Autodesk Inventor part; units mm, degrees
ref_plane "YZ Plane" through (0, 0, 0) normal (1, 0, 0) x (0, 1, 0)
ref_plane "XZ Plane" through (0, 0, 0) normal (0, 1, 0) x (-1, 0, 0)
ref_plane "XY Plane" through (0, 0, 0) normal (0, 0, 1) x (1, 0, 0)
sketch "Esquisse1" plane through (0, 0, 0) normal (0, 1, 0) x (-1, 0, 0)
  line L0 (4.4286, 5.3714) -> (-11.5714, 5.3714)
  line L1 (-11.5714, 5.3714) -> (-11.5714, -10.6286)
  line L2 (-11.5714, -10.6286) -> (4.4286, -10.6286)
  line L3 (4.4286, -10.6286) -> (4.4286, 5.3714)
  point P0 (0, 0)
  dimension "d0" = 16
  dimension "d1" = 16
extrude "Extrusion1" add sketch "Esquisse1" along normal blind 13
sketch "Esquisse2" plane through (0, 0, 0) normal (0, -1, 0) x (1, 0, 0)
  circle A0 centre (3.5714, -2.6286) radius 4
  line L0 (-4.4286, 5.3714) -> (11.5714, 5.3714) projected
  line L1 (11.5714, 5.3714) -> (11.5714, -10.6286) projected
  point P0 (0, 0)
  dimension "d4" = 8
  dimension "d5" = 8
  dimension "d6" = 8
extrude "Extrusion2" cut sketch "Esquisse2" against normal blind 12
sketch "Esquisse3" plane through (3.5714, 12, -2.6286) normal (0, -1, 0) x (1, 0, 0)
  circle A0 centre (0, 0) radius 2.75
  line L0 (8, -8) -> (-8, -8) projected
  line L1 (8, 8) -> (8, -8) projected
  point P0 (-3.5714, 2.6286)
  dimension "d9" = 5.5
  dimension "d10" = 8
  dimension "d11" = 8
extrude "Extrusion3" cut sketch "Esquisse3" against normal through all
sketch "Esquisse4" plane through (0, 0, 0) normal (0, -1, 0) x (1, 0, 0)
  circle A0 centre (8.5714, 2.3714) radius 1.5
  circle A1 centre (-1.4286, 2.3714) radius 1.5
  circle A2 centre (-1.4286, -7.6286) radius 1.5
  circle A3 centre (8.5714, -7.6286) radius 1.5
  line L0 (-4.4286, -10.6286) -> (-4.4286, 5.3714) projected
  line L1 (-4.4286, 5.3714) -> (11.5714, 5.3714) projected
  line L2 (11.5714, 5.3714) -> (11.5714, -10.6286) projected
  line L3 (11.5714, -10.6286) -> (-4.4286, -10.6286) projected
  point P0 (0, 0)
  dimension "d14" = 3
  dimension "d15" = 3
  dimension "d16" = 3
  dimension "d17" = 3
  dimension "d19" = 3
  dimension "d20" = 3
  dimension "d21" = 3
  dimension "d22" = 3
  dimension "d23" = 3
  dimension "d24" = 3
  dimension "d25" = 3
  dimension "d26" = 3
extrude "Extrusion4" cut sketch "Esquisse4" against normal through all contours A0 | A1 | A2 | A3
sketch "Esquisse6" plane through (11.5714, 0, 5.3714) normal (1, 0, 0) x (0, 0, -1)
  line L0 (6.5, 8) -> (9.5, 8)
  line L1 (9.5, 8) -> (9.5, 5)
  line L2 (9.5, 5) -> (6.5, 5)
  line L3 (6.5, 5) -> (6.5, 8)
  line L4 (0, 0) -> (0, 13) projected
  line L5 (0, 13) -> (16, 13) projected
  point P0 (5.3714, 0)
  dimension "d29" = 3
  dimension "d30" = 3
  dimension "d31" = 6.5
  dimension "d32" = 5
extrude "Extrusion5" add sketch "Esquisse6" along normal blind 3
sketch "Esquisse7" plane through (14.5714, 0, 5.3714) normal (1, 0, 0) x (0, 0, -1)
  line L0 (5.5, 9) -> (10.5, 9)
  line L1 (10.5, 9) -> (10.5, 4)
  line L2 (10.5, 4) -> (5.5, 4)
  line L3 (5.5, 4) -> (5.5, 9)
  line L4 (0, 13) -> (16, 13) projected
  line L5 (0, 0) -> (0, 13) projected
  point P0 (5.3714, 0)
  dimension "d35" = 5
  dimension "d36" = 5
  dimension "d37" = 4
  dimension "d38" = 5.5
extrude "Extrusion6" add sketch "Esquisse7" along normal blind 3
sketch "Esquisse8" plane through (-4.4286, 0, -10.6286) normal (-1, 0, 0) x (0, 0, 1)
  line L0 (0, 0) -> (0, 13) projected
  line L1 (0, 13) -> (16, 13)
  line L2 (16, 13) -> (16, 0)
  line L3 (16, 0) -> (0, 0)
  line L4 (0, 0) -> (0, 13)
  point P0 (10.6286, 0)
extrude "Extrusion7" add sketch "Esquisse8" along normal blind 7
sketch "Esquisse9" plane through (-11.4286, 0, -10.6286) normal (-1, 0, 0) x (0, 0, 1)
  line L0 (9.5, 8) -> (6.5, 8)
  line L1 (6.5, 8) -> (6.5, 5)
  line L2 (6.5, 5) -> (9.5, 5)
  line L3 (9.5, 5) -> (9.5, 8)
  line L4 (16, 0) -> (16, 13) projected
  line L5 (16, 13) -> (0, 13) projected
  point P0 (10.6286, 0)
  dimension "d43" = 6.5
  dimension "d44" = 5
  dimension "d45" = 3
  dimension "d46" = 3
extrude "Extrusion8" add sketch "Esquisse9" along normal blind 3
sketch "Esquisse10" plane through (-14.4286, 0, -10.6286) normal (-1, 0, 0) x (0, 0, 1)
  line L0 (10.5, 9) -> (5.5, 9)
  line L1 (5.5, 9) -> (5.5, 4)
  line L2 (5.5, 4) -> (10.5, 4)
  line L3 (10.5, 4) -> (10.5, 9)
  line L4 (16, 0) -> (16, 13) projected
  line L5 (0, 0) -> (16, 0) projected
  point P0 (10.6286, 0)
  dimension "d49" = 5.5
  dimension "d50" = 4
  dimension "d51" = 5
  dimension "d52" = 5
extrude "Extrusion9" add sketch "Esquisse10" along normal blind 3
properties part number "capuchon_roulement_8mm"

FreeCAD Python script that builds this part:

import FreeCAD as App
import Part
import Sketcher
from FreeCAD import Vector


def add_polygon(sketch, points):
    """Adds a closed chain of lines whose ends are joined by coincident constraints."""
    first, n = sketch.GeometryCount, len(points)
    for a, b in zip(points, points[1:] + points[:1]):
        sketch.addGeometry(Part.LineSegment(App.Vector(*a, 0), App.Vector(*b, 0)), False)
    for i in range(n):
        sketch.addConstraint(Sketcher.Constraint("Coincident", first + i, 2, first + (i + 1) % n, 1))

doc = App.newDocument("Part")
body = doc.addObject("PartDesign::Body", "Body")

# Sketch on XZ plane
sketch1 = doc.addObject("Sketcher::SketchObject", "Sketch")
body.addObject(sketch1)
sketch1.AttachmentSupport = (doc.XZ_Plane, [""])
sketch1.MapMode = "FlatFace"
add_polygon(sketch1, [(-4, -11), (-4, 5), (12, 5), (12, -11)])  # lines 0-3
sketch1.addConstraint([
    Sketcher.Constraint("Vertical", 0),
    Sketcher.Constraint("Horizontal", 1),
    Sketcher.Constraint("Vertical", 2),
    Sketcher.Constraint("Horizontal", 3),
    Sketcher.Constraint("Equal", 3, 0),
    Sketcher.Constraint("DistanceX", 1, 1, 1, 2, 16.0),
    Sketcher.Constraint("DistanceX", 0, 2, -1, 1, 4.4286),
    Sketcher.Constraint("DistanceY", -1, 1, 0, 2, 5.3714),
])
pad1 = doc.addObject("PartDesign::Pad", "Pad")
body.addObject(pad1)
pad1.Profile = sketch1
pad1.Length = 13
pad1.Reversed = True

# Sketch on XZ plane
sketch2 = doc.addObject("Sketcher::SketchObject", "Sketch001")
body.addObject(sketch2)
sketch2.AttachmentSupport = (doc.XZ_Plane, [""])
sketch2.MapMode = "FlatFace"
sketch2.addGeometry(Part.Circle(Vector(3.6, -2.6, 0), Vector(0, 0, 1), 4), False)
sketch2.addConstraint([
    Sketcher.Constraint("Diameter", 0, 8.0),
    Sketcher.Constraint("DistanceX", -1, 1, 0, 3, 3.5714),
    Sketcher.Constraint("DistanceY", 0, 3, -1, 1, 2.6286),
])
pocket1 = doc.addObject("PartDesign::Pocket", "Pocket")
body.addObject(pocket1)
pocket1.Profile = sketch2
pocket1.Length = 12

# Sketch on XZ plane
sketch3 = doc.addObject("Sketcher::SketchObject", "Sketch002")
body.addObject(sketch3)
sketch3.AttachmentSupport = (doc.XZ_Plane, [""])
sketch3.MapMode = "FlatFace"
sketch3.AttachmentOffset = App.Placement(Vector(0, 0, -12), App.Rotation())
sketch3.addGeometry(Part.Circle(Vector(3.6, -2.6, 0), Vector(0, 0, 1), 2.8), False)
sketch3.addConstraint([
    Sketcher.Constraint("Diameter", 0, 5.5),
    Sketcher.Constraint("DistanceX", -1, 1, 0, 3, 3.5714),
    Sketcher.Constraint("DistanceY", 0, 3, -1, 1, 2.6286),
])
pocket2 = doc.addObject("PartDesign::Pocket", "Pocket001")
body.addObject(pocket2)
pocket2.Profile = sketch3
pocket2.Type = "ThroughAll"

# Sketch on XZ plane
sketch4 = doc.addObject("Sketcher::SketchObject", "Sketch003")
body.addObject(sketch4)
sketch4.AttachmentSupport = (doc.XZ_Plane, [""])
sketch4.MapMode = "FlatFace"
sketch4.addGeometry([
    Part.Circle(Vector(8.6, 2.4, 0), Vector(0, 0, 1), 1.5),
    Part.Circle(Vector(-1.4, 2.4, 0), Vector(0, 0, 1), 1.5),
    Part.Circle(Vector(-1.4, -7.6, 0), Vector(0, 0, 1), 1.5),
    Part.Circle(Vector(8.6, -7.6, 0), Vector(0, 0, 1), 1.5),
], False)
sketch4.addConstraint([
    Sketcher.Constraint("Equal", 0, 1),
    Sketcher.Constraint("Equal", 1, 2),
    Sketcher.Constraint("Equal", 2, 3),
    Sketcher.Constraint("Horizontal", 0, 3, 1, 3),
    Sketcher.Constraint("Horizontal", 2, 3, 3, 3),
    Sketcher.Constraint("Vertical", 1, 3, 2, 3),
    Sketcher.Constraint("Vertical", 0, 3, 3, 3),
    Sketcher.Constraint("Diameter", 0, 3.0),
    Sketcher.Constraint("DistanceX", 1, 3, 0, 3, 10.0),
    Sketcher.Constraint("DistanceY", 2, 3, 1, 3, 10.0),
    Sketcher.Constraint("DistanceX", -1, 1, 0, 3, 8.5714),
    Sketcher.Constraint("DistanceY", -1, 1, 0, 3, 2.3714),
])
pocket3 = doc.addObject("PartDesign::Pocket", "Pocket002")
body.addObject(pocket3)
pocket3.Profile = sketch4
pocket3.Type = "ThroughAll"

# Sketch on YZ plane
sketch5 = doc.addObject("Sketcher::SketchObject", "Sketch004")
body.addObject(sketch5)
sketch5.AttachmentSupport = (doc.YZ_Plane, [""])
sketch5.MapMode = "FlatFace"
sketch5.AttachmentOffset = App.Placement(Vector(0, 0, 11.5714), App.Rotation())
add_polygon(sketch5, [(8, -4.1), (8, -1.1), (5, -1.1), (5, -4.1)])  # lines 0-3
sketch5.addConstraint([
    Sketcher.Constraint("Vertical", 0),
    Sketcher.Constraint("Horizontal", 1),
    Sketcher.Constraint("Vertical", 2),
    Sketcher.Constraint("Horizontal", 3),
    Sketcher.Constraint("Equal", 3, 0),
    Sketcher.Constraint("DistanceX", 1, 2, 1, 1, 3.0),
    Sketcher.Constraint("DistanceX", -1, 1, 1, 2, 5.0),
    Sketcher.Constraint("DistanceY", 0, 2, -1, 1, 1.1286),
])
pad2 = doc.addObject("PartDesign::Pad", "Pad001")
body.addObject(pad2)
pad2.Profile = sketch5
pad2.Length = 3

# Sketch on YZ plane
sketch6 = doc.addObject("Sketcher::SketchObject", "Sketch005")
body.addObject(sketch6)
sketch6.AttachmentSupport = (doc.YZ_Plane, [""])
sketch6.MapMode = "FlatFace"
sketch6.AttachmentOffset = App.Placement(Vector(0, 0, 14.5714), App.Rotation())
add_polygon(sketch6, [(9, -5), (9, 0), (4, 0), (4, -5)])  # lines 0-3
sketch6.addConstraint([
    Sketcher.Constraint("Vertical", 0),
    Sketcher.Constraint("Horizontal", 1),
    Sketcher.Constraint("Vertical", 2),
    Sketcher.Constraint("Horizontal", 3),
    Sketcher.Constraint("Equal", 3, 0),
    Sketcher.Constraint("DistanceX", 1, 2, 1, 1, 5.0),
    Sketcher.Constraint("DistanceX", -1, 1, 1, 2, 4.0),
    Sketcher.Constraint("DistanceY", 0, 2, -1, 1, 0.1286),
])
pad3 = doc.addObject("PartDesign::Pad", "Pad002")
body.addObject(pad3)
pad3.Profile = sketch6
pad3.Length = 3

# Sketch on YZ plane
sketch7 = doc.addObject("Sketcher::SketchObject", "Sketch006")
body.addObject(sketch7)
sketch7.AttachmentSupport = (doc.YZ_Plane, [""])
sketch7.MapMode = "FlatFace"
sketch7.AttachmentOffset = App.Placement(Vector(0, 0, -4.4286), App.Rotation())
add_polygon(sketch7, [(13, -11), (0, -11), (0, 5), (13, 5)])  # lines 0-3
sketch7.addConstraint([
    Sketcher.Constraint("Horizontal", 0),
    Sketcher.Constraint("Vertical", 1),
    Sketcher.Constraint("Horizontal", 2),
    Sketcher.Constraint("Vertical", 3),
    Sketcher.Constraint("PointOnObject", 0, 2, -2),
    Sketcher.Constraint("DistanceX", 0, 2, 0, 1, 13.0),
    Sketcher.Constraint("DistanceY", 1, 1, 1, 2, 16.0),
    Sketcher.Constraint("DistanceY", 0, 2, -1, 1, 10.6286),
])
pad4 = doc.addObject("PartDesign::Pad", "Pad003")
body.addObject(pad4)
pad4.Profile = sketch7
pad4.Length = 7
pad4.Reversed = True

# Sketch on YZ plane
sketch8 = doc.addObject("Sketcher::SketchObject", "Sketch007")
body.addObject(sketch8)
sketch8.AttachmentSupport = (doc.YZ_Plane, [""])
sketch8.MapMode = "FlatFace"
sketch8.AttachmentOffset = App.Placement(Vector(0, 0, -11.4286), App.Rotation())
add_polygon(sketch8, [(5, -1.1), (8, -1.1), (8, -4.1), (5, -4.1)])  # lines 0-3
sketch8.addConstraint([
    Sketcher.Constraint("Horizontal", 0),
    Sketcher.Constraint("Vertical", 1),
    Sketcher.Constraint("Horizontal", 2),
    Sketcher.Constraint("Vertical", 3),
    Sketcher.Constraint("Equal", 2, 1),
    Sketcher.Constraint("DistanceX", 0, 1, 0, 2, 3.0),
    Sketcher.Constraint("DistanceX", -1, 1, 2, 2, 5.0),
    Sketcher.Constraint("DistanceY", 0, 2, -1, 1, 1.1286),
])
pad5 = doc.addObject("PartDesign::Pad", "Pad004")
body.addObject(pad5)
pad5.Profile = sketch8
pad5.Length = 3
pad5.Reversed = True

# Sketch on YZ plane
sketch9 = doc.addObject("Sketcher::SketchObject", "Sketch008")
body.addObject(sketch9)
sketch9.AttachmentSupport = (doc.YZ_Plane, [""])
sketch9.MapMode = "FlatFace"
sketch9.AttachmentOffset = App.Placement(Vector(0, 0, -14.4286), App.Rotation())
add_polygon(sketch9, [(4, 0), (9, 0), (9, -5), (4, -5)])  # lines 0-3
sketch9.addConstraint([
    Sketcher.Constraint("Horizontal", 0),
    Sketcher.Constraint("Vertical", 1),
    Sketcher.Constraint("Horizontal", 2),
    Sketcher.Constraint("Vertical", 3),
    Sketcher.Constraint("Equal", 2, 1),
    Sketcher.Constraint("DistanceX", 0, 1, 0, 2, 5.0),
    Sketcher.Constraint("DistanceX", -1, 1, 2, 2, 4.0),
    Sketcher.Constraint("DistanceY", 0, 2, -1, 1, 0.1286),
])
pad6 = doc.addObject("PartDesign::Pad", "Pad005")
body.addObject(pad6)
pad6.Profile = sketch9
pad6.Length = 3
pad6.Reversed = True

doc.recompute()
